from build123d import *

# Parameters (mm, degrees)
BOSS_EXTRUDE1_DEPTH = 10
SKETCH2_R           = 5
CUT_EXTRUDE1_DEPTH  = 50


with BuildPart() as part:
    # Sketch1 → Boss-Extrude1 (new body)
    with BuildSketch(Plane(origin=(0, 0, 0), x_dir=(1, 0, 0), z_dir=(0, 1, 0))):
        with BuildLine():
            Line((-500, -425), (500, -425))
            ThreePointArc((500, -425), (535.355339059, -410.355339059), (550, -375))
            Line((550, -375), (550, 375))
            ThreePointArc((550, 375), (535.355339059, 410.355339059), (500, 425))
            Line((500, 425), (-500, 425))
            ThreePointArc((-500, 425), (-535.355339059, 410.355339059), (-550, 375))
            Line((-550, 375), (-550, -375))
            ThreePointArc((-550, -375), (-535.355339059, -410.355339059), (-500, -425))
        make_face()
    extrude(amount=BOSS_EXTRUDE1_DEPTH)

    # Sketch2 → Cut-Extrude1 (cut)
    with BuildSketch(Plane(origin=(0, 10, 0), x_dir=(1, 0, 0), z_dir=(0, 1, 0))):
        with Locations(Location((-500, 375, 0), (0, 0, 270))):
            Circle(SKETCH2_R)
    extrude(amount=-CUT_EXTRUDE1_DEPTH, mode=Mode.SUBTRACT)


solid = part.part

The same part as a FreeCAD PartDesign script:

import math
import FreeCAD as App
import Part
import Sketcher

doc = App.newDocument("Part")
body = doc.addObject("PartDesign::Body", "Body")

sketch1 = body.newObject("Sketcher::SketchObject", "Sketch")
sketch1.AttachmentSupport = (doc.getObject("XZ_Plane"), [""])
sketch1.MapMode = "FlatFace"
sketch1.addGeometry([
    Part.LineSegment(App.Vector(-500, 425, 0), App.Vector(500, 425, 0)),
    Part.ArcOfCircle(Part.Circle(App.Vector(500, 375, 0), App.Vector(0, 0, 1), 50), math.radians(0), math.radians(90)),
    Part.LineSegment(App.Vector(550, 375, 0), App.Vector(550, -375, 0)),
    Part.ArcOfCircle(Part.Circle(App.Vector(500, -375, 0), App.Vector(0, 0, 1), 50), math.radians(-90), math.radians(0)),
    Part.LineSegment(App.Vector(500, -425, 0), App.Vector(-500, -425, 0)),
    Part.ArcOfCircle(Part.Circle(App.Vector(-500, -375, 0), App.Vector(0, 0, 1), 50), math.radians(-180), math.radians(-90)),
    Part.LineSegment(App.Vector(-550, -375, 0), App.Vector(-550, 375, 0)),
    Part.ArcOfCircle(Part.Circle(App.Vector(-500, 375, 0), App.Vector(0, 0, 1), 50), math.radians(90), math.radians(180)),
], False)
sketch1.addConstraint([
    Sketcher.Constraint("Tangent", 0, 2, 1, 2),
    Sketcher.Constraint("Tangent", 1, 1, 2, 1),
    Sketcher.Constraint("Tangent", 2, 2, 3, 2),
    Sketcher.Constraint("Tangent", 3, 1, 4, 1),
    Sketcher.Constraint("Tangent", 4, 2, 5, 2),
    Sketcher.Constraint("Tangent", 5, 1, 6, 1),
    Sketcher.Constraint("Tangent", 6, 2, 7, 2),
    Sketcher.Constraint("Tangent", 7, 1, 0, 1),
    Sketcher.Constraint("Horizontal", 0),
    Sketcher.Constraint("Vertical", 2),
    Sketcher.Constraint("Horizontal", 4),
    Sketcher.Constraint("Vertical", 6),
    Sketcher.Constraint("Equal", 1, 3),
    Sketcher.Constraint("Equal", 3, 5),
    Sketcher.Constraint("Equal", 5, 7),
    Sketcher.Constraint("Symmetric", 1, 3, 5, 3, -1, 1),
    Sketcher.Constraint("Radius", 1, 50.0),
    Sketcher.Constraint("DistanceX", 0, 1, 0, 2, 1000.0),
    Sketcher.Constraint("DistanceY", 2, 2, 2, 1, 750.0),
])
pad1 = body.newObject("PartDesign::Pad", "Pad")
pad1.Profile = sketch1
pad1.Length = 10
pad1.Reversed = True

sketch2 = body.newObject("Sketcher::SketchObject", "Sketch001")
sketch2.AttachmentSupport = (doc.getObject("XZ_Plane"), [""])
sketch2.MapMode = "FlatFace"
sketch2.AttachmentOffset = App.Placement(App.Vector(0, 0, -10), App.Rotation())
sketch2.addGeometry(Part.Circle(App.Vector(-500, -375, 0), App.Vector(0, 0, 1), 5), False)
sketch2.addConstraint([
    Sketcher.Constraint("Diameter", 0, 10.0),
    Sketcher.Constraint("DistanceX", 0, 3, -1, 1, 500.0),
    Sketcher.Constraint("DistanceY", 0, 3, -1, 1, 375.0),
])
pocket1 = body.newObject("PartDesign::Pocket", "Pocket")
pocket1.Profile = sketch2
pocket1.Length = 50
pocket1.Reversed = True

doc.recompute()
